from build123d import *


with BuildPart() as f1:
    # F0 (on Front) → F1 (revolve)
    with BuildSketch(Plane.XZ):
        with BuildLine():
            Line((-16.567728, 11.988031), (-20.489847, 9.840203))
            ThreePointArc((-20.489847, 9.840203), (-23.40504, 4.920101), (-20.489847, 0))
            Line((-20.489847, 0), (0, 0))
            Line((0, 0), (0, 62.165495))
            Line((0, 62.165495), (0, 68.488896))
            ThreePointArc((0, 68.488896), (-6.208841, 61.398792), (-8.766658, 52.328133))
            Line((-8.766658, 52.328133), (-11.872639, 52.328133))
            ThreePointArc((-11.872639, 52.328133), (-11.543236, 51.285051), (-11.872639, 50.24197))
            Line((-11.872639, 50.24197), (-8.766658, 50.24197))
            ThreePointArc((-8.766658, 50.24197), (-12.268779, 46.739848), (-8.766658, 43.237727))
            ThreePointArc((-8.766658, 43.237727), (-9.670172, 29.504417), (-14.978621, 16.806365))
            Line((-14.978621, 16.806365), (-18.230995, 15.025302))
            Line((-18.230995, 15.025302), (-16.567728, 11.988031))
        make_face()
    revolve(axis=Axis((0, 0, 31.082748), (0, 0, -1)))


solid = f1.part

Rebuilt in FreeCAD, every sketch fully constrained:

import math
import FreeCAD as App
import Part
import Sketcher
from FreeCAD import Vector
Q = App.Units.Quantity

doc = App.newDocument("Part")
params = doc.addObject("Spreadsheet::Sheet", "Params")
for row, (alias, value) in enumerate([
    ("revolution_angle", "360 deg"),
], start=1):
    params.set(f"A{row}", alias)
    params.set(f"B{row}", "=" + value)
    params.setAlias(f"B{row}", alias)

body = doc.addObject("PartDesign::Body", "Body")

sketch1 = doc.addObject("Sketcher::SketchObject", "Sketch")
body.addObject(sketch1)
sketch1.AttachmentSupport = (doc.XZ_Plane, [""])
sketch1.MapMode = "FlatFace"
sketch1.addGeometry(Part.LineSegment(Vector(-16.6, 12, 0), Vector(-20.5, 9.8, 0)), False)
sketch1.addGeometry(Part.ArcOfCircle(Part.Circle(Vector(-17.8, 4.9, 0), Vector(0, 0, 1), 5.6), math.radians(119), math.radians(241)), False)
sketch1.addGeometry(Part.LineSegment(Vector(-20.5, 0, 0), Vector(0, 0, 0)), False)
sketch1.addGeometry(Part.LineSegment(Vector(0, 0, 0), Vector(0, 68.5, 0)), False)
sketch1.addGeometry(Part.ArcOfCircle(Part.Circle(Vector(12.6, 51.2, 0), Vector(0, 0, 1), 21.4), math.radians(126), math.radians(177)), False)
sketch1.addGeometry(Part.LineSegment(Vector(-8.8, 52.3, 0), Vector(-11.9, 52.3, 0)), False)
sketch1.addGeometry(Part.ArcOfCircle(Part.Circle(Vector(-13.4, 51.3, 0), Vector(0, 0, 1), 1.8), math.radians(-35), math.radians(35)), False)
sketch1.addGeometry(Part.LineSegment(Vector(-11.9, 50.2, 0), Vector(-8.8, 50.2, 0)), False)
sketch1.addGeometry(Part.ArcOfCircle(Part.Circle(Vector(-8.8, 46.7, 0), Vector(0, 0, 1), 3.5), math.radians(90), math.radians(270)), False)
sketch1.addGeometry(Part.ArcOfCircle(Part.Circle(Vector(-50.4, 39.1, 0), Vector(0, 0, 1), 41.9), math.radians(-32), math.radians(6)), False)
sketch1.addGeometry(Part.LineSegment(Vector(-15, 16.8, 0), Vector(-18.2, 15, 0)), False)
sketch1.addGeometry(Part.LineSegment(Vector(-18.2, 15, 0), Vector(-16.6, 12, 0)), False)
sketch1.addConstraint(Sketcher.Constraint("Tangent", 0, 2, 1, 1))
sketch1.addConstraint(Sketcher.Constraint("Coincident", 1, 2, 2, 1))
sketch1.addConstraint(Sketcher.Constraint("Coincident", 2, 2, 3, 1))
sketch1.addConstraint(Sketcher.Constraint("Coincident", 3, 2, 4, 1))
sketch1.addConstraint(Sketcher.Constraint("Coincident", 4, 2, 5, 1))
sketch1.addConstraint(Sketcher.Constraint("Coincident", 5, 2, 6, 2))
sketch1.addConstraint(Sketcher.Constraint("Coincident", 6, 1, 7, 1))
sketch1.addConstraint(Sketcher.Constraint("Tangent", 7, 2, 8, 1))
sketch1.addConstraint(Sketcher.Constraint("Coincident", 8, 2, 9, 2))
sketch1.addConstraint(Sketcher.Constraint("Coincident", 9, 1, 10, 1))
sketch1.addConstraint(Sketcher.Constraint("Coincident", 10, 2, 11, 1))
sketch1.addConstraint(Sketcher.Constraint("Coincident", 11, 2, 0, 1))
sketch1.addConstraint(Sketcher.Constraint("Horizontal", 2))
sketch1.addConstraint(Sketcher.Constraint("Vertical", 3))
sketch1.addConstraint(Sketcher.Constraint("Horizontal", 5))
sketch1.addConstraint(Sketcher.Constraint("Horizontal", 7))
sketch1.addConstraint(Sketcher.Constraint("Coincident", 2, 2, -1, 1))
sketch1.addConstraint(Sketcher.Constraint("Parallel", 0, 10))
sketch1.addConstraint(Sketcher.Constraint("Perpendicular", 10, 11))
sketch1.addConstraint(Sketcher.Constraint("Vertical", 0, 2, 1, 2))
sketch1.addConstraint(Sketcher.Constraint("Vertical", 8, 3, 4, 2))
sketch1.addConstraint(Sketcher.Constraint("Vertical", 5, 2, 6, 1))
sketch1.addConstraint(Sketcher.Constraint("Vertical", 7, 2, 8, 2))
sketch1.addConstraint(Sketcher.Constraint("Radius", 8, Q("3.502121 mm")))
sketch1.addConstraint(Sketcher.Constraint("Radius", 9, Q("41.861229 mm")))
sketch1.addConstraint(Sketcher.Constraint("Radius", 1, Q("5.609534 mm")))
sketch1.addConstraint(Sketcher.Constraint("Radius", 4, Q("21.383574 mm")))
sketch1.addConstraint(Sketcher.Constraint("Radius", 6, Q("1.816203 mm")))
sketch1.addConstraint(Sketcher.Constraint("DistanceX", 5, 2, 5, 1, Q("3.105981 mm")))
sketch1.addConstraint(Sketcher.Constraint("DistanceY", -1, 1, 1, 3, Q("4.920102 mm")))
sketch1.addConstraint(Sketcher.Constraint("DistanceY", 8, 3, 4, 3, Q("4.462699 mm")))
sketch1.addConstraint(Sketcher.Constraint("DistanceX", 6, 3, 5, 2, Q("1.4868 mm")))
sketch1.addConstraint(Sketcher.Constraint("DistanceY", 0, 2, 10, 2, Q("5.185099 mm")))
sketch1.addConstraint(Sketcher.Constraint("Distance", 0, Q("4.471709 mm")))
sketch1.addConstraint(Sketcher.Constraint("DistanceX", 2, 1, 2, 2, Q("20.489847 mm")))
sketch1.addConstraint(Sketcher.Constraint("DistanceY", 3, 1, 3, 2, Q("68.488896 mm")))
sketch1.addConstraint(Sketcher.Constraint("DistanceX", -1, 1, 4, 3, Q("12.587272 mm")))
sketch1.addConstraint(Sketcher.Constraint("DistanceX", 9, 3, -1, 1, Q("50.421078 mm")))
revolution = doc.addObject("PartDesign::Revolution", "Revolution")
body.addObject(revolution)
revolution.Profile = sketch1
revolution.ReferenceAxis = (sketch1, ["V_Axis"])
revolution.setExpression("Angle", "Params.revolution_angle")

doc.recompute()
